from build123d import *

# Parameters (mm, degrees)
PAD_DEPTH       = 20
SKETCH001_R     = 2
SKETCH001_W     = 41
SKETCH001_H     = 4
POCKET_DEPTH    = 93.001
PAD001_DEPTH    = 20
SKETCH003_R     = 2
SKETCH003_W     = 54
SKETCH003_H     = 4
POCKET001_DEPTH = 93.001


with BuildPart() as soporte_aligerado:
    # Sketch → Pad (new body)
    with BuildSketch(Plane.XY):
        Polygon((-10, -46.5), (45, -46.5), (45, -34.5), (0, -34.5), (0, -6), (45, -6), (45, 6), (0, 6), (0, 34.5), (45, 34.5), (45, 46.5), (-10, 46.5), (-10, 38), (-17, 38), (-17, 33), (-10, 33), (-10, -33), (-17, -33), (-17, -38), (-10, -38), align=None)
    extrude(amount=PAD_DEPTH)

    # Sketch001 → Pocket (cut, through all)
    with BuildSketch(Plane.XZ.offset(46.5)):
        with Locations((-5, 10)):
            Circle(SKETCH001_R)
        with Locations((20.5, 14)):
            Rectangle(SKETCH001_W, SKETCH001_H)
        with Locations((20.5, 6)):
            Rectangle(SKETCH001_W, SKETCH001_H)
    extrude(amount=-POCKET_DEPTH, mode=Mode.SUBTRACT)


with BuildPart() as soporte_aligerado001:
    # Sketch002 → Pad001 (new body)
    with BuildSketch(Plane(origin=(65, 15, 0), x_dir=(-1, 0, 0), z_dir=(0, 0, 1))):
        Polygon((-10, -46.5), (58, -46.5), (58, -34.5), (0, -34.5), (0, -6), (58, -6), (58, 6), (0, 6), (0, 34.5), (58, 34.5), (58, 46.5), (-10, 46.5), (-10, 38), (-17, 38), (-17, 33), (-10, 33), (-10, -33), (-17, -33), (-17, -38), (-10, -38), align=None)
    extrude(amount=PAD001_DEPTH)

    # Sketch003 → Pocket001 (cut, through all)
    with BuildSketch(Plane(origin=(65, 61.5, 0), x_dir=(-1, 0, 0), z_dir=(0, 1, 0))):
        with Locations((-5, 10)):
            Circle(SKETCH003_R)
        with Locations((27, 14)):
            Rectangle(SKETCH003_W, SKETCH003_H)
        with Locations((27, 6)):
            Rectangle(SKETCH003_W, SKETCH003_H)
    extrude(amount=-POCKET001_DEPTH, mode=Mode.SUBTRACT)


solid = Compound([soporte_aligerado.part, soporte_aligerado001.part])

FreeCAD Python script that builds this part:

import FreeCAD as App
import Part
import Sketcher

V = App.Vector


def add_polygon(sketch, points):
    """Adds a closed chain of lines whose ends are joined by coincident constraints."""
    first, n = sketch.GeometryCount, len(points)
    for a, b in zip(points, points[1:] + points[:1]):
        sketch.addGeometry(Part.LineSegment(App.Vector(*a, 0), App.Vector(*b, 0)), False)
    for i in range(n):
        sketch.addConstraint(Sketcher.Constraint("Coincident", first + i, 2, first + (i + 1) % n, 1))

doc = App.newDocument("Part")
body = doc.addObject("PartDesign::Body", "Body")

# Sketch on XY plane
sketch1 = body.newObject("Sketcher::SketchObject", "Sketch")
sketch1.AttachmentSupport = (doc.getObject("XY_Plane"), [""])
sketch1.MapMode = "FlatFace"
add_polygon(sketch1, [(-10, -46), (45, -46), (45, -34), (0, -34), (0, -6), (45, -6), (45, 6), (0, 6), (0, 34), (45, 34), (45, 46), (-10, 46), (-10, 38), (-17, 38), (-17, 33), (-10, 33), (-10, -33), (-17, -33), (-17, -38), (-10, -38)])  # lines 0-19
sketch1.addConstraint([
    Sketcher.Constraint("Horizontal", 0),
    Sketcher.Constraint("Vertical", 1),
    Sketcher.Constraint("Horizontal", 2),
    Sketcher.Constraint("Vertical", 3),
    Sketcher.Constraint("Horizontal", 4),
    Sketcher.Constraint("Vertical", 5),
    Sketcher.Constraint("Horizontal", 6),
    Sketcher.Constraint("Vertical", 7),
    Sketcher.Constraint("Horizontal", 8),
    Sketcher.Constraint("Vertical", 9),
    Sketcher.Constraint("Horizontal", 10),
    Sketcher.Constraint("Vertical", 11),
    Sketcher.Constraint("Horizontal", 12),
    Sketcher.Constraint("Vertical", 13),
    Sketcher.Constraint("Horizontal", 14),
    Sketcher.Constraint("Vertical", 15),
    Sketcher.Constraint("Horizontal", 16),
    Sketcher.Constraint("Vertical", 17),
    Sketcher.Constraint("Horizontal", 18),
    Sketcher.Constraint("Vertical", 19),
    Sketcher.Constraint("Symmetric", 3, 2, 6, 2, -1, 1),
    Sketcher.Constraint("Symmetric", 2, 2, 7, 2, -1),
    Sketcher.Constraint("Symmetric", 0, 2, 9, 2, -1),
    Sketcher.Constraint("Symmetric", 13, 2, 16, 2, -1),
    Sketcher.Constraint("Symmetric", 11, 2, 18, 2, -1),
    Sketcher.Constraint("Vertical", 1, 2, 4, 2),
    Sketcher.Constraint("Vertical", 11, 2, 14, 2),
    Sketcher.Constraint("Equal", 1, 5),
    Sketcher.Constraint("DistanceX", 0, 1, 0, 2, 55.0),
    Sketcher.Constraint("DistanceX", 2, 2, 2, 1, 45.0),
    Sketcher.Constraint("DistanceX", 12, 2, 12, 1, 7.0),
    Sketcher.Constraint("DistanceY", 1, 1, 1, 2, 12.0),
    Sketcher.Constraint("DistanceY", 13, 2, 13, 1, 5.0),
    Sketcher.Constraint("DistanceY", 15, 2, 15, 1, 66.0),
    Sketcher.Constraint("DistanceY", 3, 1, 3, 2, 28.5),
])
pad1 = body.newObject("PartDesign::Pad", "Pad")
pad1.Profile = sketch1
pad1.Length = 20

# Sketch on XZ plane
sketch2 = body.newObject("Sketcher::SketchObject", "Sketch001")
sketch2.AttachmentSupport = (doc.getObject("XZ_Plane"), [""])
sketch2.MapMode = "FlatFace"
sketch2.AttachmentOffset = App.Placement(V(0, 0, 46.5), App.Rotation())
sketch2.addGeometry(Part.Circle(V(-5, 10, 0), V(0, 0, 1), 2), False)  # 0
add_polygon(sketch2, [(0, 16), (0, 12), (41, 12), (41, 16)])  # lines 1-4
add_polygon(sketch2, [(0, 8), (0, 4), (41, 4), (41, 8)])  # lines 5-8
sketch2.addConstraint([
    Sketcher.Constraint("Vertical", 1),
    Sketcher.Constraint("Horizontal", 2),
    Sketcher.Constraint("Vertical", 3),
    Sketcher.Constraint("Horizontal", 4),
    Sketcher.Constraint("Vertical", 5),
    Sketcher.Constraint("Horizontal", 6),
    Sketcher.Constraint("Vertical", 7),
    Sketcher.Constraint("Horizontal", 8),
    Sketcher.Constraint("PointOnObject", 1, 2, -2),
    Sketcher.Constraint("PointOnObject", 5, 2, -2),
    Sketcher.Constraint("Vertical", 3, 2, 6, 2),
    Sketcher.Constraint("Equal", 3, 5),
    Sketcher.Constraint("Diameter", 0, 4.0),
    Sketcher.Constraint("DistanceX", 2, 1, 2, 2, 41.0),
    Sketcher.Constraint("DistanceY", 1, 2, 1, 1, 4.0),
    Sketcher.Constraint("DistanceX", 0, 3, -1, 1, 5.0),
    Sketcher.Constraint("DistanceY", -1, 1, 0, 3, 10.0),
    Sketcher.Constraint("DistanceY", -1, 1, 1, 2, 12.0),
    Sketcher.Constraint("DistanceY", -1, 1, 5, 2, 4.0),
])
pocket1 = body.newObject("PartDesign::Pocket", "Pocket")
pocket1.Profile = sketch2
pocket1.Type = "ThroughAll"
body2 = doc.addObject("PartDesign::Body", "Body001")

# Sketch on XY plane
sketch3 = body2.newObject("Sketcher::SketchObject", "Sketch002")
sketch3.AttachmentSupport = (doc.getObject("XY_Plane001"), [""])
sketch3.MapMode = "FlatFace"
add_polygon(sketch3, [(75, 62), (7, 62), (7, 50), (65, 50), (65, 21), (7, 21), (7, 9), (65, 9), (65, -20), (7, -20), (7, -32), (75, -32), (75, -23), (82, -23), (82, -18), (75, -18), (75, 48), (82, 48), (82, 53), (75, 53)])  # lines 0-19
sketch3.addConstraint([
    Sketcher.Constraint("Horizontal", 0),
    Sketcher.Constraint("Vertical", 1),
    Sketcher.Constraint("Horizontal", 2),
    Sketcher.Constraint("Vertical", 3),
    Sketcher.Constraint("Horizontal", 4),
    Sketcher.Constraint("Vertical", 5),
    Sketcher.Constraint("Horizontal", 6),
    Sketcher.Constraint("Vertical", 7),
    Sketcher.Constraint("Horizontal", 8),
    Sketcher.Constraint("Vertical", 9),
    Sketcher.Constraint("Horizontal", 10),
    Sketcher.Constraint("Vertical", 11),
    Sketcher.Constraint("Horizontal", 12),
    Sketcher.Constraint("Vertical", 13),
    Sketcher.Constraint("Horizontal", 14),
    Sketcher.Constraint("Vertical", 15),
    Sketcher.Constraint("Horizontal", 16),
    Sketcher.Constraint("Vertical", 17),
    Sketcher.Constraint("Horizontal", 18),
    Sketcher.Constraint("Vertical", 19),
    Sketcher.Constraint("Vertical", 1, 2, 4, 2),
    Sketcher.Constraint("Vertical", 3, 2, 6, 2),
    Sketcher.Constraint("Vertical", 5, 2, 8, 2),
    Sketcher.Constraint("Vertical", 11, 2, 14, 2),
    Sketcher.Constraint("Vertical", 13, 2, 16, 2),
    Sketcher.Constraint("Vertical", 15, 2, 18, 2),
    Sketcher.Constraint("Equal", 1, 5),
    Sketcher.Constraint("Equal", 3, 7),
    Sketcher.Constraint("Equal", 5, 9),
    Sketcher.Constraint("Equal", 13, 17),
    Sketcher.Constraint("Equal", 11, 19),
    Sketcher.Constraint("DistanceX", 0, 2, 0, 1, 68.0),
    Sketcher.Constraint("DistanceX", 2, 1, 2, 2, 58.0),
    Sketcher.Constraint("DistanceX", 12, 1, 12, 2, 7.0),
    Sketcher.Constraint("DistanceY", 1, 2, 1, 1, 12.0),
    Sketcher.Constraint("DistanceY", 13, 1, 13, 2, 5.0),
    Sketcher.Constraint("DistanceY", 15, 1, 15, 2, 66.0),
    Sketcher.Constraint("DistanceY", 3, 2, 3, 1, 28.5),
    Sketcher.Constraint("DistanceX", -1, 1, 0, 2, 7.0),
    Sketcher.Constraint("DistanceY", -1, 1, 3, 2, 21.0),
])
pad2 = body2.newObject("PartDesign::Pad", "Pad001")
pad2.Profile = sketch3
pad2.Length = 20

# Sketch on XZ plane
sketch4 = body2.newObject("Sketcher::SketchObject", "Sketch003")
sketch4.AttachmentSupport = (doc.getObject("XZ_Plane001"), [""])
sketch4.MapMode = "FlatFace"
sketch4.AttachmentOffset = App.Placement(V(0, 0, -61.5), App.Rotation())
sketch4.addGeometry(Part.Circle(V(70, 10, 0), V(0, 0, 1), 2), False)  # 0
add_polygon(sketch4, [(65, 16), (65, 12), (11, 12), (11, 16)])  # lines 1-4
add_polygon(sketch4, [(65, 8), (65, 4), (11, 4), (11, 8)])  # lines 5-8
sketch4.addConstraint([
    Sketcher.Constraint("Vertical", 1),
    Sketcher.Constraint("Horizontal", 2),
    Sketcher.Constraint("Vertical", 3),
    Sketcher.Constraint("Horizontal", 4),
    Sketcher.Constraint("Vertical", 5),
    Sketcher.Constraint("Horizontal", 6),
    Sketcher.Constraint("Vertical", 7),
    Sketcher.Constraint("Horizontal", 8),
    Sketcher.Constraint("Vertical", 4, 2, 5, 2),
    Sketcher.Constraint("Vertical", 3, 2, 6, 2),
    Sketcher.Constraint("Equal", 3, 5),
    Sketcher.Constraint("Diameter", 0, 4.0),
    Sketcher.Constraint("DistanceX", 2, 2, 2, 1, 54.0),
    Sketcher.Constraint("DistanceY", 1, 2, 1, 1, 4.0),
    Sketcher.Constraint("DistanceX", -1, 1, 0, 3, 70.0),
    Sketcher.Constraint("DistanceY", -1, 1, 0, 3, 10.0),
    Sketcher.Constraint("DistanceX", -1, 1, 1, 2, 65.0),
    Sketcher.Constraint("DistanceY", -1, 1, 1, 2, 12.0),
    Sketcher.Constraint("DistanceY", -1, 1, 5, 2, 4.0),
])
pocket2 = body2.newObject("PartDesign::Pocket", "Pocket001")
pocket2.Profile = sketch4
pocket2.Type = "ThroughAll"
pocket2.Reversed = True

doc.recompute()
